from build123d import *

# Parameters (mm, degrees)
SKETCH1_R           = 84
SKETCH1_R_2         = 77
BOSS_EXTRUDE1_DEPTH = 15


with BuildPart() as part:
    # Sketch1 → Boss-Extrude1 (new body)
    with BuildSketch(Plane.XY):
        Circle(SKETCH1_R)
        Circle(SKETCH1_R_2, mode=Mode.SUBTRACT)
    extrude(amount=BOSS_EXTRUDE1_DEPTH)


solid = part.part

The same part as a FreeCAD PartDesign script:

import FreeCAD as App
import Part
import Sketcher
from FreeCAD import Vector
Q = App.Units.Quantity

doc = App.newDocument("Part")
body = doc.addObject("PartDesign::Body", "Body")

sketch1 = doc.addObject("Sketcher::SketchObject", "Sketch")
body.addObject(sketch1)
sketch1.AttachmentSupport = (doc.XY_Plane, [""])
sketch1.MapMode = "FlatFace"
sketch1.addGeometry(Part.Circle(Vector(0, 0, 0), Vector(0, 0, 1), 84), False)
sketch1.addGeometry(Part.Circle(Vector(0, 0, 0), Vector(0, 0, 1), 77), False)
sketch1.addConstraint(Sketcher.Constraint("Coincident", 0, 3, -1, 1))
sketch1.addConstraint(Sketcher.Constraint("Coincident", 1, 3, -1, 1))
sketch1.addConstraint(Sketcher.Constraint("Diameter", 0, Q("168 mm")))
sketch1.addConstraint(Sketcher.Constraint("Diameter", 1, Q("154 mm")))
pad1 = doc.addObject("PartDesign::Pad", "Pad")
body.addObject(pad1)
pad1.Profile = sketch1
pad1.Length = 15

doc.recompute()
